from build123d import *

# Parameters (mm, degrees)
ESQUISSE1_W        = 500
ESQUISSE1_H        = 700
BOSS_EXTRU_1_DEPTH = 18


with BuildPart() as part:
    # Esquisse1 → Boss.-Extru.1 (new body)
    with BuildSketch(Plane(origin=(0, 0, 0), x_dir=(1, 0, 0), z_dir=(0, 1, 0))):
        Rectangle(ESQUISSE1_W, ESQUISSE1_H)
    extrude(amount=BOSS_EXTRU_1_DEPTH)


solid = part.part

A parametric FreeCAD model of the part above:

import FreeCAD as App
import Part
import Sketcher
Q = App.Units.Quantity


def add_polygon(sketch, points):
    """Adds a closed chain of lines whose ends are joined by coincident constraints."""
    first, n = sketch.GeometryCount, len(points)
    for a, b in zip(points, points[1:] + points[:1]):
        sketch.addGeometry(Part.LineSegment(App.Vector(*a, 0), App.Vector(*b, 0)), False)
    for i in range(n):
        sketch.addConstraint(Sketcher.Constraint("Coincident", first + i, 2, first + (i + 1) % n, 1))

doc = App.newDocument("Part")
body = doc.addObject("PartDesign::Body", "Body")

# Sketch on XZ plane
sketch1 = body.newObject("Sketcher::SketchObject", "Sketch")
sketch1.AttachmentSupport = (doc.getObject("XZ_Plane"), [""])
sketch1.MapMode = "FlatFace"
add_polygon(sketch1, [(-250, -350), (-250, 350), (250, 350), (250, -350)])  # lines 0-3
sketch1.addConstraint([
    Sketcher.Constraint("Vertical", 0),
    Sketcher.Constraint("Horizontal", 1),
    Sketcher.Constraint("Vertical", 2),
    Sketcher.Constraint("Horizontal", 3),
    Sketcher.Constraint("Symmetric", 0, 2, 2, 2, -1, 1),
    Sketcher.Constraint("DistanceX", 1, 1, 1, 2, Q("500 mm")),
    Sketcher.Constraint("DistanceY", 0, 1, 0, 2, Q("700 mm")),
])
pad1 = body.newObject("PartDesign::Pad", "Pad")
pad1.Profile = sketch1
pad1.Length = 18
pad1.Reversed = True

doc.recompute()
